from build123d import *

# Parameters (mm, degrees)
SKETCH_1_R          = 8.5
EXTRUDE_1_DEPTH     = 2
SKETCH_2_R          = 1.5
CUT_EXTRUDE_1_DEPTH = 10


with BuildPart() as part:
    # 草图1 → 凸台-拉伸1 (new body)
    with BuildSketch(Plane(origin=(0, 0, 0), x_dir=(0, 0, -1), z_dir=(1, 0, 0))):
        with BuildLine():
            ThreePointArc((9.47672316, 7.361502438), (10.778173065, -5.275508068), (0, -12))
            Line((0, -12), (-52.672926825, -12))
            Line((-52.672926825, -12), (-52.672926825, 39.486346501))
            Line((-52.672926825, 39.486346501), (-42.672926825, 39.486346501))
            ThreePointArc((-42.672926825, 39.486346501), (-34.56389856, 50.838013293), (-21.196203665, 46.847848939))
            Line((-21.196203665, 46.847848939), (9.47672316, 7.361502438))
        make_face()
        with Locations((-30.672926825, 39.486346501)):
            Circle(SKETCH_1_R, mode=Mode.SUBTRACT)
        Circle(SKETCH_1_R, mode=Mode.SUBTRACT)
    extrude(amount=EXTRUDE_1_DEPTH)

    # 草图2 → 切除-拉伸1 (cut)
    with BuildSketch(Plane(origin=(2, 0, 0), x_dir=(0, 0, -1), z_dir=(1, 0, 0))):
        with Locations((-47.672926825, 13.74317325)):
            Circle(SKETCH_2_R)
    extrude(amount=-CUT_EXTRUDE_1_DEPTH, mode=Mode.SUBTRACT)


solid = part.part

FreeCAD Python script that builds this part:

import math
import FreeCAD as App
import Part
import Sketcher
Q = App.Units.Quantity

doc = App.newDocument("Part")
params = doc.addObject("Spreadsheet::Sheet", "Params")
for row, (alias, value) in enumerate([
    ("sketch1_diameter", "17 mm"),
    ("sketch1_radius", "12 mm"),
    ("sketch1_height", "10 mm"),
    ("sketch1_length", "50 mm"),
    ("pad1_length", "2 mm"),
    ("sketch2_diameter", "3 mm"),
    ("pocket1_length", "10 mm"),
], start=1):
    params.set(f"A{row}", alias)
    params.set(f"B{row}", "=" + value)
    params.setAlias(f"B{row}", alias)

body = doc.addObject("PartDesign::Body", "Body")

sketch1 = body.newObject("Sketcher::SketchObject", "Sketch")
sketch1.AttachmentSupport = (doc.getObject("YZ_Plane"), [""])
sketch1.MapMode = "FlatFace"
sketch1.addGeometry([
    Part.ArcOfCircle(Part.Circle(App.Vector(0, 0, 0), App.Vector(0, 0, 1), 12), math.radians(180), math.radians(308)),
    Part.LineSegment(App.Vector(7, -9, 0), App.Vector(47, 21, 0)),
    Part.ArcOfCircle(Part.Circle(App.Vector(39, 31, 0), App.Vector(0, 0, 1), 12), math.radians(-52), math.radians(90)),
    Part.LineSegment(App.Vector(39, 43, 0), App.Vector(39, 53, 0)),
    Part.LineSegment(App.Vector(39, 53, 0), App.Vector(-12, 53, 0)),
    Part.LineSegment(App.Vector(-12, 53, 0), App.Vector(-12, 0, 0)),
    Part.Circle(App.Vector(0, 0, 0), App.Vector(0, 0, 1), 8),
    Part.Circle(App.Vector(39, 31, 0), App.Vector(0, 0, 1), 8),
], False)
sketch1.addConstraint([
    Sketcher.Constraint("Tangent", 0, 2, 1, 1),
    Sketcher.Constraint("Tangent", 1, 2, 2, 1),
    Sketcher.Constraint("Coincident", 2, 2, 3, 1),
    Sketcher.Constraint("Coincident", 3, 2, 4, 1),
    Sketcher.Constraint("Coincident", 4, 2, 5, 1),
    Sketcher.Constraint("Tangent", 5, 2, 0, 1),
    Sketcher.Constraint("Vertical", 3),
    Sketcher.Constraint("Horizontal", 4),
    Sketcher.Constraint("Vertical", 5),
    Sketcher.Constraint("Coincident", 0, 3, -1, 1),
    Sketcher.Constraint("Coincident", 6, 3, -1, 1),
    Sketcher.Constraint("Coincident", 7, 3, 2, 3),
    Sketcher.Constraint("Equal", 0, 2),
    Sketcher.Constraint("Equal", 6, 7),
    Sketcher.Constraint("Vertical", 7, 3, 2, 2),
    Sketcher.Constraint("Diameter", 6, Q("17 mm")),
    Sketcher.Constraint("Radius", 0, Q("12 mm")),
    Sketcher.Constraint("DistanceY", 3, 1, 3, 2, Q("10 mm")),
    Sketcher.Constraint("Distance", 1, Q("50 mm")),
    Sketcher.Constraint("Angle", 1, Q("37.84 deg")),
])
sketch1.setExpression("Constraints[15]", "Params.sketch1_diameter")
sketch1.setExpression("Constraints[16]", "Params.sketch1_radius")
sketch1.setExpression("Constraints[17]", "Params.sketch1_height")
sketch1.setExpression("Constraints[18]", "Params.sketch1_length")
pad1 = body.newObject("PartDesign::Pad", "Pad")
pad1.Profile = sketch1
pad1.setExpression("Length", "Params.pad1_length")

sketch2 = body.newObject("Sketcher::SketchObject", "Sketch001")
sketch2.AttachmentSupport = (doc.getObject("YZ_Plane"), [""])
sketch2.MapMode = "FlatFace"
sketch2.AttachmentOffset = App.Placement(App.Vector(0, 0, 2), App.Rotation())
sketch2.addGeometry(Part.Circle(App.Vector(13.7, 47.7, 0), App.Vector(0, 0, 1), 1.5), False)
sketch2.addConstraint([
    Sketcher.Constraint("Diameter", 0, Q("3 mm")),
    Sketcher.Constraint("DistanceX", -1, 1, 0, 3, Q("13.743173 mm")),
    Sketcher.Constraint("DistanceY", -1, 1, 0, 3, Q("47.672927 mm")),
])
sketch2.setExpression("Constraints[0]", "Params.sketch2_diameter")
pocket1 = body.newObject("PartDesign::Pocket", "Pocket")
pocket1.Profile = sketch2
pocket1.setExpression("Length", "Params.pocket1_length")

doc.recompute()
